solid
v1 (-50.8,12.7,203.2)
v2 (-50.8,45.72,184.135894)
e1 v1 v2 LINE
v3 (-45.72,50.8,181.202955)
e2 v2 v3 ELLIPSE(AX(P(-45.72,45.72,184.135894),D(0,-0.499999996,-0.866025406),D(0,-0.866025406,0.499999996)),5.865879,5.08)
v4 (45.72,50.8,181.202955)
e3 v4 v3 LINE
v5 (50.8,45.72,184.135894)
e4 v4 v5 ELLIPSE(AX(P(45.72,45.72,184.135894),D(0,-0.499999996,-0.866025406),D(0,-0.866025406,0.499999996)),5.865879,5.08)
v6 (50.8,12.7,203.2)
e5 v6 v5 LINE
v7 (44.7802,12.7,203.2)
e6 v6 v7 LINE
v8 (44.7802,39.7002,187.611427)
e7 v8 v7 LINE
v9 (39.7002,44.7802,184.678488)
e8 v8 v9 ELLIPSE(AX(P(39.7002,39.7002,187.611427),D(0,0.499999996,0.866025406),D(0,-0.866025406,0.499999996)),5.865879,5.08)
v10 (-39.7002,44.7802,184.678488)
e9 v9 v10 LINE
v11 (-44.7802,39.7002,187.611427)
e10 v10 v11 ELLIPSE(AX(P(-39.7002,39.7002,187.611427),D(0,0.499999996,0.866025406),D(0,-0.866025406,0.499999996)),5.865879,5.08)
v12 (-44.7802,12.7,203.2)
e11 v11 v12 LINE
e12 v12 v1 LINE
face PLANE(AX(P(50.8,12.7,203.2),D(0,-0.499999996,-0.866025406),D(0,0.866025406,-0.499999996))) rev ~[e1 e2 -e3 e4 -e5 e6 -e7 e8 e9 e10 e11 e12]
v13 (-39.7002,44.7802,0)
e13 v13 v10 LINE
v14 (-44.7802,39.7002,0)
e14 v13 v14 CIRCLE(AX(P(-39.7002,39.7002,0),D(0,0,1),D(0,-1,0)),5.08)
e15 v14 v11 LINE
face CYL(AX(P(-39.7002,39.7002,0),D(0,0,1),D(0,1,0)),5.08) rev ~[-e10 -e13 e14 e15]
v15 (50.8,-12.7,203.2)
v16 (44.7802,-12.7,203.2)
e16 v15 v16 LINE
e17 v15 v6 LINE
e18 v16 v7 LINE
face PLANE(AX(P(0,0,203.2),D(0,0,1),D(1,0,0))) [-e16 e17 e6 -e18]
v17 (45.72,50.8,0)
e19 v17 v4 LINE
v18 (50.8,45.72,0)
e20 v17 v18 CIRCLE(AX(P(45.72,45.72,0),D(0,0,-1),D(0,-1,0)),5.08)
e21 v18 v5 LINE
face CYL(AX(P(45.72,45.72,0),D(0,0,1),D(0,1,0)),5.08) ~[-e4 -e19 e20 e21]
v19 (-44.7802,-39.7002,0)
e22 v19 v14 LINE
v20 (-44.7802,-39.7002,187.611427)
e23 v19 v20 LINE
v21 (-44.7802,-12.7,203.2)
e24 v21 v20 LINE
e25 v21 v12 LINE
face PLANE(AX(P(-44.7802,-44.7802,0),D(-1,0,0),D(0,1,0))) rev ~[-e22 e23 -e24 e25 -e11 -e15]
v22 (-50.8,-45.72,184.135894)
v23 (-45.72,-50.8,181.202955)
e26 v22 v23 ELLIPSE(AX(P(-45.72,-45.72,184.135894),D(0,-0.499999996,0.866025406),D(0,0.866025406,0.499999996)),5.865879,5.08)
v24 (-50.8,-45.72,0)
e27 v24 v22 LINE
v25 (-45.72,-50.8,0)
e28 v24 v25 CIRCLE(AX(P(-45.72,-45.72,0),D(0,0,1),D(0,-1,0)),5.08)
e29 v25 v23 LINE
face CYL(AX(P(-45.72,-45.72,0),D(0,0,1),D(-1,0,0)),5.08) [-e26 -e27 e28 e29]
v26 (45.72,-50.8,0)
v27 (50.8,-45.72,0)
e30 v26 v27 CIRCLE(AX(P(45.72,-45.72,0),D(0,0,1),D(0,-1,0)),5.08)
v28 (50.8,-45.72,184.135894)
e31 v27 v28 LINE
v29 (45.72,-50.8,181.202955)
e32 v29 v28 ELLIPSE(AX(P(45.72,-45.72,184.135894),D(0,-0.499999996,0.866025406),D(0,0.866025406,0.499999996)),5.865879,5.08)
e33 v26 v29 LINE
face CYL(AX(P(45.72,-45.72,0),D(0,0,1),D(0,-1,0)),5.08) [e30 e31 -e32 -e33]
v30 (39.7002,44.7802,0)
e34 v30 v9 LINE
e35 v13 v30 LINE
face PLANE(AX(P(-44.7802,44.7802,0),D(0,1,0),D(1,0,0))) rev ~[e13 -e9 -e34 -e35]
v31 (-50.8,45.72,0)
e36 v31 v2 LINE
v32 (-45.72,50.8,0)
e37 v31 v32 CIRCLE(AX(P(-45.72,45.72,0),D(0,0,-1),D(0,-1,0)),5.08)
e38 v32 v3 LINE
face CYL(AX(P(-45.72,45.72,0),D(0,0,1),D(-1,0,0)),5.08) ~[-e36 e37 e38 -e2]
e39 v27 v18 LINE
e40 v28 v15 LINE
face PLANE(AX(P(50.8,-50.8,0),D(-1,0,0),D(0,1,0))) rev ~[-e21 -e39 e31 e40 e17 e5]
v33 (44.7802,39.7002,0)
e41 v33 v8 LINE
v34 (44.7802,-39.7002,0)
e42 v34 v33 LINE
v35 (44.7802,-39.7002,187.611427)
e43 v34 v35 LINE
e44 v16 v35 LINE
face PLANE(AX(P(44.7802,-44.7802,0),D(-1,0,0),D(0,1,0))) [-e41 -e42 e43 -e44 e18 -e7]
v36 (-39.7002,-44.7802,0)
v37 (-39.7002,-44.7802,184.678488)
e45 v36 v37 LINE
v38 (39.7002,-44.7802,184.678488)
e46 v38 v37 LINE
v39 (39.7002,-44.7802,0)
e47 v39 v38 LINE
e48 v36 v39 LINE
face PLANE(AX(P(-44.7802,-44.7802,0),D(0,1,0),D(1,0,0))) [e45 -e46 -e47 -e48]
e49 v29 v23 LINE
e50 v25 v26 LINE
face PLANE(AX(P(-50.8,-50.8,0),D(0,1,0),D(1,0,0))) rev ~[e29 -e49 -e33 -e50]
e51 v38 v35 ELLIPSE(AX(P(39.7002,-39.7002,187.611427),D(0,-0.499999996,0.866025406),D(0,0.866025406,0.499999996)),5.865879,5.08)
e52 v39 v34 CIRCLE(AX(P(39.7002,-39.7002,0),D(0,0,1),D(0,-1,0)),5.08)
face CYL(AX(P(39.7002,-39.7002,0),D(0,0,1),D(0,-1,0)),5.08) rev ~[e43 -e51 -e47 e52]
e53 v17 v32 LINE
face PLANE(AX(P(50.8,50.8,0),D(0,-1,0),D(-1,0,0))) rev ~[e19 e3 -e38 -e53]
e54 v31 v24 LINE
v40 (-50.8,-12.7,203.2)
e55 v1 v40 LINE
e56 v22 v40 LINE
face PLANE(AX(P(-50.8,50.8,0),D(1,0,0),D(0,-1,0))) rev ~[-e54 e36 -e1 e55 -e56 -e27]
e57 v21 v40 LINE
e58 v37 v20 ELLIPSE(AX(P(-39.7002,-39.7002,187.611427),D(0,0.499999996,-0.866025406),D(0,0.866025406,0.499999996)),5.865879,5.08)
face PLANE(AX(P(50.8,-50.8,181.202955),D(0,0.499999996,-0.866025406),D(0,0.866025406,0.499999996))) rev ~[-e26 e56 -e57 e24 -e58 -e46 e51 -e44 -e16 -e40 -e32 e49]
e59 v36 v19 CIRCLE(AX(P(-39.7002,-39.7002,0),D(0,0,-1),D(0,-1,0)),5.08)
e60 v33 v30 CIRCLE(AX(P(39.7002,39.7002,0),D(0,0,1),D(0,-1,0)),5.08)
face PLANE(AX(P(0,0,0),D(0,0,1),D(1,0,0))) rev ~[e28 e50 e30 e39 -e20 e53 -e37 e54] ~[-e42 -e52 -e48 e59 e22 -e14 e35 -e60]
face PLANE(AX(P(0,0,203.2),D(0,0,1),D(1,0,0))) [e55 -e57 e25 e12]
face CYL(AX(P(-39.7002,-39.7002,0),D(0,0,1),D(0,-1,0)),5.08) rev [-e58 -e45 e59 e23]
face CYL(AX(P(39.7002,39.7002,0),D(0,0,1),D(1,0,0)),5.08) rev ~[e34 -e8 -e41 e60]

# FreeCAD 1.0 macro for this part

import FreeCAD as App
import Part
import Sketcher
from FreeCAD import Vector
Q = App.Units.Quantity


def edges_at(feature, points):
    """Names of the edges that pass closest to the given points."""
    edges = feature.Shape.Edges
    near = lambda p: min(range(len(edges)), key=lambda i: edges[i].distToShape(Part.Vertex(*p))[0])
    return sorted({f"Edge{near(p) + 1}" for p in points})

doc = App.newDocument("Part")
body = doc.addObject("PartDesign::Body", "Body")

# Sketch on XY plane
sketch1 = body.newObject("Sketcher::SketchObject", "Sketch")
sketch1.AttachmentSupport = (doc.getObject("XY_Plane"), [""])
sketch1.MapMode = "FlatFace"
sketch1.addGeometry(Part.LineSegment(Vector(-50.8, 50.8, 0), Vector(-50.8, -50.8, 0)), False)
sketch1.addGeometry(Part.LineSegment(Vector(-50.8, -50.8, 0), Vector(50.8, -50.8, 0)), False)
sketch1.addGeometry(Part.LineSegment(Vector(50.8, -50.8, 0), Vector(50.8, 50.8, 0)), False)
sketch1.addGeometry(Part.LineSegment(Vector(50.8, 50.8, 0), Vector(-50.8, 50.8, 0)), False)
sketch1.addGeometry(Part.LineSegment(Vector(44.7802, -44.7802, 0), Vector(-44.7802, -44.7802, 0)), False)
sketch1.addGeometry(Part.LineSegment(Vector(-44.7802, -44.7802, 0), Vector(-44.7802, 44.7802, 0)), False)
sketch1.addGeometry(Part.LineSegment(Vector(-44.7802, 44.7802, 0), Vector(44.7802, 44.7802, 0)), False)
sketch1.addGeometry(Part.LineSegment(Vector(44.7802, 44.7802, 0), Vector(44.7802, -44.7802, 0)), False)
sketch1.addConstraint(Sketcher.Constraint("Coincident", 0, 2, 1, 1))
sketch1.addConstraint(Sketcher.Constraint("Coincident", 1, 2, 2, 1))
sketch1.addConstraint(Sketcher.Constraint("Coincident", 2, 2, 3, 1))
sketch1.addConstraint(Sketcher.Constraint("Coincident", 3, 2, 0, 1))
sketch1.addConstraint(Sketcher.Constraint("Coincident", 4, 2, 5, 1))
sketch1.addConstraint(Sketcher.Constraint("Coincident", 5, 2, 6, 1))
sketch1.addConstraint(Sketcher.Constraint("Coincident", 6, 2, 7, 1))
sketch1.addConstraint(Sketcher.Constraint("Coincident", 7, 2, 4, 1))
sketch1.addConstraint(Sketcher.Constraint("Vertical", 0))
sketch1.addConstraint(Sketcher.Constraint("Horizontal", 1))
sketch1.addConstraint(Sketcher.Constraint("Vertical", 2))
sketch1.addConstraint(Sketcher.Constraint("Horizontal", 3))
sketch1.addConstraint(Sketcher.Constraint("Horizontal", 4))
sketch1.addConstraint(Sketcher.Constraint("Vertical", 5))
sketch1.addConstraint(Sketcher.Constraint("Horizontal", 6))
sketch1.addConstraint(Sketcher.Constraint("Vertical", 7))
sketch1.addConstraint(Sketcher.Constraint("Symmetric", 0, 2, 2, 2, -1, 1))
sketch1.addConstraint(Sketcher.Constraint("Symmetric", 4, 2, 6, 2, -1, 1))
sketch1.addConstraint(Sketcher.Constraint("Equal", 3, 0))
sketch1.addConstraint(Sketcher.Constraint("Equal", 6, 5))
sketch1.addConstraint(Sketcher.Constraint("DistanceX", 1, 1, 1, 2, Q("4 in")))
sketch1.addConstraint(Sketcher.Constraint("DistanceX", 4, 2, 4, 1, Q("3.526 in")))
pad1 = body.newObject("PartDesign::Pad", "Pad")
pad1.Profile = sketch1
pad1.Length = Q("8 in")

# Sketch on YZ plane
sketch2 = body.newObject("Sketcher::SketchObject", "Sketch001")
sketch2.AttachmentSupport = (doc.getObject("YZ_Plane"), [""])
sketch2.MapMode = "FlatFace"
sketch2.AttachmentOffset = App.Placement(Vector(0, 0, 2 * 25.4), App.Rotation())
sketch2.addGeometry(Part.LineSegment(Vector(-12.7, 203.2, 0), Vector(-50.8, 203.2, 0)), False)
sketch2.addGeometry(Part.LineSegment(Vector(-50.8, 203.2, 0), Vector(-50.8, 181.202955, 0)), False)
sketch2.addGeometry(Part.LineSegment(Vector(-50.8, 181.202955, 0), Vector(-12.7, 203.2, 0)), False)
sketch2.addGeometry(Part.LineSegment(Vector(50.8, 203.2, 0), Vector(12.7, 203.2, 0)), False)
sketch2.addGeometry(Part.LineSegment(Vector(12.7, 203.2, 0), Vector(50.8, 181.202955, 0)), False)
sketch2.addGeometry(Part.LineSegment(Vector(50.8, 181.202955, 0), Vector(50.8, 203.2, 0)), False)
sketch2.addConstraint(Sketcher.Constraint("Coincident", 0, 2, 1, 1))
sketch2.addConstraint(Sketcher.Constraint("Coincident", 1, 2, 2, 1))
sketch2.addConstraint(Sketcher.Constraint("Coincident", 2, 2, 0, 1))
sketch2.addConstraint(Sketcher.Constraint("Coincident", 3, 2, 4, 1))
sketch2.addConstraint(Sketcher.Constraint("Coincident", 4, 2, 5, 1))
sketch2.addConstraint(Sketcher.Constraint("Coincident", 5, 2, 3, 1))
sketch2.addConstraint(Sketcher.Constraint("Horizontal", 0))
sketch2.addConstraint(Sketcher.Constraint("Vertical", 1))
sketch2.addConstraint(Sketcher.Constraint("Horizontal", 3))
sketch2.addConstraint(Sketcher.Constraint("Vertical", 5))
sketch2.addConstraint(Sketcher.Constraint("Symmetric", 2, 2, 3, 2, -2))
sketch2.addConstraint(Sketcher.Constraint("Symmetric", 1, 2, 4, 2, -2))
sketch2.addConstraint(Sketcher.Constraint("DistanceX", 0, 2, 0, 1, Q("1.5 in")))
sketch2.addConstraint(Sketcher.Constraint("DistanceX", 0, 2, -1, 1, Q("2 in")))
sketch2.addConstraint(Sketcher.Constraint("DistanceY", -1, 1, 0, 2, Q("8 in")))
sketch2.addConstraint(Sketcher.Constraint("Angle", 2, Q("30 deg")))
pocket1 = body.newObject("PartDesign::Pocket", "Pocket")
pocket1.Profile = sketch2
pocket1.Length = Q("4 in")
doc.recompute()

fillet = body.newObject("PartDesign::Fillet", "Fillet")
fillet.Base = (pocket1, edges_at(pocket1, [
    (-50.8, -50.8, 90.601),
    (50.8, -50.8, 90.601),
    (50.8, 50.8, 90.601),
    (-44.78, 44.78, 92.339),
    (-44.78, -44.78, 92.339),
    (-50.8, 50.8, 90.601),
    (44.78, -44.78, 92.339),
    (44.78, 44.78, 92.339),
]))
fillet.Radius = Q("0.2 in")

doc.recompute()
